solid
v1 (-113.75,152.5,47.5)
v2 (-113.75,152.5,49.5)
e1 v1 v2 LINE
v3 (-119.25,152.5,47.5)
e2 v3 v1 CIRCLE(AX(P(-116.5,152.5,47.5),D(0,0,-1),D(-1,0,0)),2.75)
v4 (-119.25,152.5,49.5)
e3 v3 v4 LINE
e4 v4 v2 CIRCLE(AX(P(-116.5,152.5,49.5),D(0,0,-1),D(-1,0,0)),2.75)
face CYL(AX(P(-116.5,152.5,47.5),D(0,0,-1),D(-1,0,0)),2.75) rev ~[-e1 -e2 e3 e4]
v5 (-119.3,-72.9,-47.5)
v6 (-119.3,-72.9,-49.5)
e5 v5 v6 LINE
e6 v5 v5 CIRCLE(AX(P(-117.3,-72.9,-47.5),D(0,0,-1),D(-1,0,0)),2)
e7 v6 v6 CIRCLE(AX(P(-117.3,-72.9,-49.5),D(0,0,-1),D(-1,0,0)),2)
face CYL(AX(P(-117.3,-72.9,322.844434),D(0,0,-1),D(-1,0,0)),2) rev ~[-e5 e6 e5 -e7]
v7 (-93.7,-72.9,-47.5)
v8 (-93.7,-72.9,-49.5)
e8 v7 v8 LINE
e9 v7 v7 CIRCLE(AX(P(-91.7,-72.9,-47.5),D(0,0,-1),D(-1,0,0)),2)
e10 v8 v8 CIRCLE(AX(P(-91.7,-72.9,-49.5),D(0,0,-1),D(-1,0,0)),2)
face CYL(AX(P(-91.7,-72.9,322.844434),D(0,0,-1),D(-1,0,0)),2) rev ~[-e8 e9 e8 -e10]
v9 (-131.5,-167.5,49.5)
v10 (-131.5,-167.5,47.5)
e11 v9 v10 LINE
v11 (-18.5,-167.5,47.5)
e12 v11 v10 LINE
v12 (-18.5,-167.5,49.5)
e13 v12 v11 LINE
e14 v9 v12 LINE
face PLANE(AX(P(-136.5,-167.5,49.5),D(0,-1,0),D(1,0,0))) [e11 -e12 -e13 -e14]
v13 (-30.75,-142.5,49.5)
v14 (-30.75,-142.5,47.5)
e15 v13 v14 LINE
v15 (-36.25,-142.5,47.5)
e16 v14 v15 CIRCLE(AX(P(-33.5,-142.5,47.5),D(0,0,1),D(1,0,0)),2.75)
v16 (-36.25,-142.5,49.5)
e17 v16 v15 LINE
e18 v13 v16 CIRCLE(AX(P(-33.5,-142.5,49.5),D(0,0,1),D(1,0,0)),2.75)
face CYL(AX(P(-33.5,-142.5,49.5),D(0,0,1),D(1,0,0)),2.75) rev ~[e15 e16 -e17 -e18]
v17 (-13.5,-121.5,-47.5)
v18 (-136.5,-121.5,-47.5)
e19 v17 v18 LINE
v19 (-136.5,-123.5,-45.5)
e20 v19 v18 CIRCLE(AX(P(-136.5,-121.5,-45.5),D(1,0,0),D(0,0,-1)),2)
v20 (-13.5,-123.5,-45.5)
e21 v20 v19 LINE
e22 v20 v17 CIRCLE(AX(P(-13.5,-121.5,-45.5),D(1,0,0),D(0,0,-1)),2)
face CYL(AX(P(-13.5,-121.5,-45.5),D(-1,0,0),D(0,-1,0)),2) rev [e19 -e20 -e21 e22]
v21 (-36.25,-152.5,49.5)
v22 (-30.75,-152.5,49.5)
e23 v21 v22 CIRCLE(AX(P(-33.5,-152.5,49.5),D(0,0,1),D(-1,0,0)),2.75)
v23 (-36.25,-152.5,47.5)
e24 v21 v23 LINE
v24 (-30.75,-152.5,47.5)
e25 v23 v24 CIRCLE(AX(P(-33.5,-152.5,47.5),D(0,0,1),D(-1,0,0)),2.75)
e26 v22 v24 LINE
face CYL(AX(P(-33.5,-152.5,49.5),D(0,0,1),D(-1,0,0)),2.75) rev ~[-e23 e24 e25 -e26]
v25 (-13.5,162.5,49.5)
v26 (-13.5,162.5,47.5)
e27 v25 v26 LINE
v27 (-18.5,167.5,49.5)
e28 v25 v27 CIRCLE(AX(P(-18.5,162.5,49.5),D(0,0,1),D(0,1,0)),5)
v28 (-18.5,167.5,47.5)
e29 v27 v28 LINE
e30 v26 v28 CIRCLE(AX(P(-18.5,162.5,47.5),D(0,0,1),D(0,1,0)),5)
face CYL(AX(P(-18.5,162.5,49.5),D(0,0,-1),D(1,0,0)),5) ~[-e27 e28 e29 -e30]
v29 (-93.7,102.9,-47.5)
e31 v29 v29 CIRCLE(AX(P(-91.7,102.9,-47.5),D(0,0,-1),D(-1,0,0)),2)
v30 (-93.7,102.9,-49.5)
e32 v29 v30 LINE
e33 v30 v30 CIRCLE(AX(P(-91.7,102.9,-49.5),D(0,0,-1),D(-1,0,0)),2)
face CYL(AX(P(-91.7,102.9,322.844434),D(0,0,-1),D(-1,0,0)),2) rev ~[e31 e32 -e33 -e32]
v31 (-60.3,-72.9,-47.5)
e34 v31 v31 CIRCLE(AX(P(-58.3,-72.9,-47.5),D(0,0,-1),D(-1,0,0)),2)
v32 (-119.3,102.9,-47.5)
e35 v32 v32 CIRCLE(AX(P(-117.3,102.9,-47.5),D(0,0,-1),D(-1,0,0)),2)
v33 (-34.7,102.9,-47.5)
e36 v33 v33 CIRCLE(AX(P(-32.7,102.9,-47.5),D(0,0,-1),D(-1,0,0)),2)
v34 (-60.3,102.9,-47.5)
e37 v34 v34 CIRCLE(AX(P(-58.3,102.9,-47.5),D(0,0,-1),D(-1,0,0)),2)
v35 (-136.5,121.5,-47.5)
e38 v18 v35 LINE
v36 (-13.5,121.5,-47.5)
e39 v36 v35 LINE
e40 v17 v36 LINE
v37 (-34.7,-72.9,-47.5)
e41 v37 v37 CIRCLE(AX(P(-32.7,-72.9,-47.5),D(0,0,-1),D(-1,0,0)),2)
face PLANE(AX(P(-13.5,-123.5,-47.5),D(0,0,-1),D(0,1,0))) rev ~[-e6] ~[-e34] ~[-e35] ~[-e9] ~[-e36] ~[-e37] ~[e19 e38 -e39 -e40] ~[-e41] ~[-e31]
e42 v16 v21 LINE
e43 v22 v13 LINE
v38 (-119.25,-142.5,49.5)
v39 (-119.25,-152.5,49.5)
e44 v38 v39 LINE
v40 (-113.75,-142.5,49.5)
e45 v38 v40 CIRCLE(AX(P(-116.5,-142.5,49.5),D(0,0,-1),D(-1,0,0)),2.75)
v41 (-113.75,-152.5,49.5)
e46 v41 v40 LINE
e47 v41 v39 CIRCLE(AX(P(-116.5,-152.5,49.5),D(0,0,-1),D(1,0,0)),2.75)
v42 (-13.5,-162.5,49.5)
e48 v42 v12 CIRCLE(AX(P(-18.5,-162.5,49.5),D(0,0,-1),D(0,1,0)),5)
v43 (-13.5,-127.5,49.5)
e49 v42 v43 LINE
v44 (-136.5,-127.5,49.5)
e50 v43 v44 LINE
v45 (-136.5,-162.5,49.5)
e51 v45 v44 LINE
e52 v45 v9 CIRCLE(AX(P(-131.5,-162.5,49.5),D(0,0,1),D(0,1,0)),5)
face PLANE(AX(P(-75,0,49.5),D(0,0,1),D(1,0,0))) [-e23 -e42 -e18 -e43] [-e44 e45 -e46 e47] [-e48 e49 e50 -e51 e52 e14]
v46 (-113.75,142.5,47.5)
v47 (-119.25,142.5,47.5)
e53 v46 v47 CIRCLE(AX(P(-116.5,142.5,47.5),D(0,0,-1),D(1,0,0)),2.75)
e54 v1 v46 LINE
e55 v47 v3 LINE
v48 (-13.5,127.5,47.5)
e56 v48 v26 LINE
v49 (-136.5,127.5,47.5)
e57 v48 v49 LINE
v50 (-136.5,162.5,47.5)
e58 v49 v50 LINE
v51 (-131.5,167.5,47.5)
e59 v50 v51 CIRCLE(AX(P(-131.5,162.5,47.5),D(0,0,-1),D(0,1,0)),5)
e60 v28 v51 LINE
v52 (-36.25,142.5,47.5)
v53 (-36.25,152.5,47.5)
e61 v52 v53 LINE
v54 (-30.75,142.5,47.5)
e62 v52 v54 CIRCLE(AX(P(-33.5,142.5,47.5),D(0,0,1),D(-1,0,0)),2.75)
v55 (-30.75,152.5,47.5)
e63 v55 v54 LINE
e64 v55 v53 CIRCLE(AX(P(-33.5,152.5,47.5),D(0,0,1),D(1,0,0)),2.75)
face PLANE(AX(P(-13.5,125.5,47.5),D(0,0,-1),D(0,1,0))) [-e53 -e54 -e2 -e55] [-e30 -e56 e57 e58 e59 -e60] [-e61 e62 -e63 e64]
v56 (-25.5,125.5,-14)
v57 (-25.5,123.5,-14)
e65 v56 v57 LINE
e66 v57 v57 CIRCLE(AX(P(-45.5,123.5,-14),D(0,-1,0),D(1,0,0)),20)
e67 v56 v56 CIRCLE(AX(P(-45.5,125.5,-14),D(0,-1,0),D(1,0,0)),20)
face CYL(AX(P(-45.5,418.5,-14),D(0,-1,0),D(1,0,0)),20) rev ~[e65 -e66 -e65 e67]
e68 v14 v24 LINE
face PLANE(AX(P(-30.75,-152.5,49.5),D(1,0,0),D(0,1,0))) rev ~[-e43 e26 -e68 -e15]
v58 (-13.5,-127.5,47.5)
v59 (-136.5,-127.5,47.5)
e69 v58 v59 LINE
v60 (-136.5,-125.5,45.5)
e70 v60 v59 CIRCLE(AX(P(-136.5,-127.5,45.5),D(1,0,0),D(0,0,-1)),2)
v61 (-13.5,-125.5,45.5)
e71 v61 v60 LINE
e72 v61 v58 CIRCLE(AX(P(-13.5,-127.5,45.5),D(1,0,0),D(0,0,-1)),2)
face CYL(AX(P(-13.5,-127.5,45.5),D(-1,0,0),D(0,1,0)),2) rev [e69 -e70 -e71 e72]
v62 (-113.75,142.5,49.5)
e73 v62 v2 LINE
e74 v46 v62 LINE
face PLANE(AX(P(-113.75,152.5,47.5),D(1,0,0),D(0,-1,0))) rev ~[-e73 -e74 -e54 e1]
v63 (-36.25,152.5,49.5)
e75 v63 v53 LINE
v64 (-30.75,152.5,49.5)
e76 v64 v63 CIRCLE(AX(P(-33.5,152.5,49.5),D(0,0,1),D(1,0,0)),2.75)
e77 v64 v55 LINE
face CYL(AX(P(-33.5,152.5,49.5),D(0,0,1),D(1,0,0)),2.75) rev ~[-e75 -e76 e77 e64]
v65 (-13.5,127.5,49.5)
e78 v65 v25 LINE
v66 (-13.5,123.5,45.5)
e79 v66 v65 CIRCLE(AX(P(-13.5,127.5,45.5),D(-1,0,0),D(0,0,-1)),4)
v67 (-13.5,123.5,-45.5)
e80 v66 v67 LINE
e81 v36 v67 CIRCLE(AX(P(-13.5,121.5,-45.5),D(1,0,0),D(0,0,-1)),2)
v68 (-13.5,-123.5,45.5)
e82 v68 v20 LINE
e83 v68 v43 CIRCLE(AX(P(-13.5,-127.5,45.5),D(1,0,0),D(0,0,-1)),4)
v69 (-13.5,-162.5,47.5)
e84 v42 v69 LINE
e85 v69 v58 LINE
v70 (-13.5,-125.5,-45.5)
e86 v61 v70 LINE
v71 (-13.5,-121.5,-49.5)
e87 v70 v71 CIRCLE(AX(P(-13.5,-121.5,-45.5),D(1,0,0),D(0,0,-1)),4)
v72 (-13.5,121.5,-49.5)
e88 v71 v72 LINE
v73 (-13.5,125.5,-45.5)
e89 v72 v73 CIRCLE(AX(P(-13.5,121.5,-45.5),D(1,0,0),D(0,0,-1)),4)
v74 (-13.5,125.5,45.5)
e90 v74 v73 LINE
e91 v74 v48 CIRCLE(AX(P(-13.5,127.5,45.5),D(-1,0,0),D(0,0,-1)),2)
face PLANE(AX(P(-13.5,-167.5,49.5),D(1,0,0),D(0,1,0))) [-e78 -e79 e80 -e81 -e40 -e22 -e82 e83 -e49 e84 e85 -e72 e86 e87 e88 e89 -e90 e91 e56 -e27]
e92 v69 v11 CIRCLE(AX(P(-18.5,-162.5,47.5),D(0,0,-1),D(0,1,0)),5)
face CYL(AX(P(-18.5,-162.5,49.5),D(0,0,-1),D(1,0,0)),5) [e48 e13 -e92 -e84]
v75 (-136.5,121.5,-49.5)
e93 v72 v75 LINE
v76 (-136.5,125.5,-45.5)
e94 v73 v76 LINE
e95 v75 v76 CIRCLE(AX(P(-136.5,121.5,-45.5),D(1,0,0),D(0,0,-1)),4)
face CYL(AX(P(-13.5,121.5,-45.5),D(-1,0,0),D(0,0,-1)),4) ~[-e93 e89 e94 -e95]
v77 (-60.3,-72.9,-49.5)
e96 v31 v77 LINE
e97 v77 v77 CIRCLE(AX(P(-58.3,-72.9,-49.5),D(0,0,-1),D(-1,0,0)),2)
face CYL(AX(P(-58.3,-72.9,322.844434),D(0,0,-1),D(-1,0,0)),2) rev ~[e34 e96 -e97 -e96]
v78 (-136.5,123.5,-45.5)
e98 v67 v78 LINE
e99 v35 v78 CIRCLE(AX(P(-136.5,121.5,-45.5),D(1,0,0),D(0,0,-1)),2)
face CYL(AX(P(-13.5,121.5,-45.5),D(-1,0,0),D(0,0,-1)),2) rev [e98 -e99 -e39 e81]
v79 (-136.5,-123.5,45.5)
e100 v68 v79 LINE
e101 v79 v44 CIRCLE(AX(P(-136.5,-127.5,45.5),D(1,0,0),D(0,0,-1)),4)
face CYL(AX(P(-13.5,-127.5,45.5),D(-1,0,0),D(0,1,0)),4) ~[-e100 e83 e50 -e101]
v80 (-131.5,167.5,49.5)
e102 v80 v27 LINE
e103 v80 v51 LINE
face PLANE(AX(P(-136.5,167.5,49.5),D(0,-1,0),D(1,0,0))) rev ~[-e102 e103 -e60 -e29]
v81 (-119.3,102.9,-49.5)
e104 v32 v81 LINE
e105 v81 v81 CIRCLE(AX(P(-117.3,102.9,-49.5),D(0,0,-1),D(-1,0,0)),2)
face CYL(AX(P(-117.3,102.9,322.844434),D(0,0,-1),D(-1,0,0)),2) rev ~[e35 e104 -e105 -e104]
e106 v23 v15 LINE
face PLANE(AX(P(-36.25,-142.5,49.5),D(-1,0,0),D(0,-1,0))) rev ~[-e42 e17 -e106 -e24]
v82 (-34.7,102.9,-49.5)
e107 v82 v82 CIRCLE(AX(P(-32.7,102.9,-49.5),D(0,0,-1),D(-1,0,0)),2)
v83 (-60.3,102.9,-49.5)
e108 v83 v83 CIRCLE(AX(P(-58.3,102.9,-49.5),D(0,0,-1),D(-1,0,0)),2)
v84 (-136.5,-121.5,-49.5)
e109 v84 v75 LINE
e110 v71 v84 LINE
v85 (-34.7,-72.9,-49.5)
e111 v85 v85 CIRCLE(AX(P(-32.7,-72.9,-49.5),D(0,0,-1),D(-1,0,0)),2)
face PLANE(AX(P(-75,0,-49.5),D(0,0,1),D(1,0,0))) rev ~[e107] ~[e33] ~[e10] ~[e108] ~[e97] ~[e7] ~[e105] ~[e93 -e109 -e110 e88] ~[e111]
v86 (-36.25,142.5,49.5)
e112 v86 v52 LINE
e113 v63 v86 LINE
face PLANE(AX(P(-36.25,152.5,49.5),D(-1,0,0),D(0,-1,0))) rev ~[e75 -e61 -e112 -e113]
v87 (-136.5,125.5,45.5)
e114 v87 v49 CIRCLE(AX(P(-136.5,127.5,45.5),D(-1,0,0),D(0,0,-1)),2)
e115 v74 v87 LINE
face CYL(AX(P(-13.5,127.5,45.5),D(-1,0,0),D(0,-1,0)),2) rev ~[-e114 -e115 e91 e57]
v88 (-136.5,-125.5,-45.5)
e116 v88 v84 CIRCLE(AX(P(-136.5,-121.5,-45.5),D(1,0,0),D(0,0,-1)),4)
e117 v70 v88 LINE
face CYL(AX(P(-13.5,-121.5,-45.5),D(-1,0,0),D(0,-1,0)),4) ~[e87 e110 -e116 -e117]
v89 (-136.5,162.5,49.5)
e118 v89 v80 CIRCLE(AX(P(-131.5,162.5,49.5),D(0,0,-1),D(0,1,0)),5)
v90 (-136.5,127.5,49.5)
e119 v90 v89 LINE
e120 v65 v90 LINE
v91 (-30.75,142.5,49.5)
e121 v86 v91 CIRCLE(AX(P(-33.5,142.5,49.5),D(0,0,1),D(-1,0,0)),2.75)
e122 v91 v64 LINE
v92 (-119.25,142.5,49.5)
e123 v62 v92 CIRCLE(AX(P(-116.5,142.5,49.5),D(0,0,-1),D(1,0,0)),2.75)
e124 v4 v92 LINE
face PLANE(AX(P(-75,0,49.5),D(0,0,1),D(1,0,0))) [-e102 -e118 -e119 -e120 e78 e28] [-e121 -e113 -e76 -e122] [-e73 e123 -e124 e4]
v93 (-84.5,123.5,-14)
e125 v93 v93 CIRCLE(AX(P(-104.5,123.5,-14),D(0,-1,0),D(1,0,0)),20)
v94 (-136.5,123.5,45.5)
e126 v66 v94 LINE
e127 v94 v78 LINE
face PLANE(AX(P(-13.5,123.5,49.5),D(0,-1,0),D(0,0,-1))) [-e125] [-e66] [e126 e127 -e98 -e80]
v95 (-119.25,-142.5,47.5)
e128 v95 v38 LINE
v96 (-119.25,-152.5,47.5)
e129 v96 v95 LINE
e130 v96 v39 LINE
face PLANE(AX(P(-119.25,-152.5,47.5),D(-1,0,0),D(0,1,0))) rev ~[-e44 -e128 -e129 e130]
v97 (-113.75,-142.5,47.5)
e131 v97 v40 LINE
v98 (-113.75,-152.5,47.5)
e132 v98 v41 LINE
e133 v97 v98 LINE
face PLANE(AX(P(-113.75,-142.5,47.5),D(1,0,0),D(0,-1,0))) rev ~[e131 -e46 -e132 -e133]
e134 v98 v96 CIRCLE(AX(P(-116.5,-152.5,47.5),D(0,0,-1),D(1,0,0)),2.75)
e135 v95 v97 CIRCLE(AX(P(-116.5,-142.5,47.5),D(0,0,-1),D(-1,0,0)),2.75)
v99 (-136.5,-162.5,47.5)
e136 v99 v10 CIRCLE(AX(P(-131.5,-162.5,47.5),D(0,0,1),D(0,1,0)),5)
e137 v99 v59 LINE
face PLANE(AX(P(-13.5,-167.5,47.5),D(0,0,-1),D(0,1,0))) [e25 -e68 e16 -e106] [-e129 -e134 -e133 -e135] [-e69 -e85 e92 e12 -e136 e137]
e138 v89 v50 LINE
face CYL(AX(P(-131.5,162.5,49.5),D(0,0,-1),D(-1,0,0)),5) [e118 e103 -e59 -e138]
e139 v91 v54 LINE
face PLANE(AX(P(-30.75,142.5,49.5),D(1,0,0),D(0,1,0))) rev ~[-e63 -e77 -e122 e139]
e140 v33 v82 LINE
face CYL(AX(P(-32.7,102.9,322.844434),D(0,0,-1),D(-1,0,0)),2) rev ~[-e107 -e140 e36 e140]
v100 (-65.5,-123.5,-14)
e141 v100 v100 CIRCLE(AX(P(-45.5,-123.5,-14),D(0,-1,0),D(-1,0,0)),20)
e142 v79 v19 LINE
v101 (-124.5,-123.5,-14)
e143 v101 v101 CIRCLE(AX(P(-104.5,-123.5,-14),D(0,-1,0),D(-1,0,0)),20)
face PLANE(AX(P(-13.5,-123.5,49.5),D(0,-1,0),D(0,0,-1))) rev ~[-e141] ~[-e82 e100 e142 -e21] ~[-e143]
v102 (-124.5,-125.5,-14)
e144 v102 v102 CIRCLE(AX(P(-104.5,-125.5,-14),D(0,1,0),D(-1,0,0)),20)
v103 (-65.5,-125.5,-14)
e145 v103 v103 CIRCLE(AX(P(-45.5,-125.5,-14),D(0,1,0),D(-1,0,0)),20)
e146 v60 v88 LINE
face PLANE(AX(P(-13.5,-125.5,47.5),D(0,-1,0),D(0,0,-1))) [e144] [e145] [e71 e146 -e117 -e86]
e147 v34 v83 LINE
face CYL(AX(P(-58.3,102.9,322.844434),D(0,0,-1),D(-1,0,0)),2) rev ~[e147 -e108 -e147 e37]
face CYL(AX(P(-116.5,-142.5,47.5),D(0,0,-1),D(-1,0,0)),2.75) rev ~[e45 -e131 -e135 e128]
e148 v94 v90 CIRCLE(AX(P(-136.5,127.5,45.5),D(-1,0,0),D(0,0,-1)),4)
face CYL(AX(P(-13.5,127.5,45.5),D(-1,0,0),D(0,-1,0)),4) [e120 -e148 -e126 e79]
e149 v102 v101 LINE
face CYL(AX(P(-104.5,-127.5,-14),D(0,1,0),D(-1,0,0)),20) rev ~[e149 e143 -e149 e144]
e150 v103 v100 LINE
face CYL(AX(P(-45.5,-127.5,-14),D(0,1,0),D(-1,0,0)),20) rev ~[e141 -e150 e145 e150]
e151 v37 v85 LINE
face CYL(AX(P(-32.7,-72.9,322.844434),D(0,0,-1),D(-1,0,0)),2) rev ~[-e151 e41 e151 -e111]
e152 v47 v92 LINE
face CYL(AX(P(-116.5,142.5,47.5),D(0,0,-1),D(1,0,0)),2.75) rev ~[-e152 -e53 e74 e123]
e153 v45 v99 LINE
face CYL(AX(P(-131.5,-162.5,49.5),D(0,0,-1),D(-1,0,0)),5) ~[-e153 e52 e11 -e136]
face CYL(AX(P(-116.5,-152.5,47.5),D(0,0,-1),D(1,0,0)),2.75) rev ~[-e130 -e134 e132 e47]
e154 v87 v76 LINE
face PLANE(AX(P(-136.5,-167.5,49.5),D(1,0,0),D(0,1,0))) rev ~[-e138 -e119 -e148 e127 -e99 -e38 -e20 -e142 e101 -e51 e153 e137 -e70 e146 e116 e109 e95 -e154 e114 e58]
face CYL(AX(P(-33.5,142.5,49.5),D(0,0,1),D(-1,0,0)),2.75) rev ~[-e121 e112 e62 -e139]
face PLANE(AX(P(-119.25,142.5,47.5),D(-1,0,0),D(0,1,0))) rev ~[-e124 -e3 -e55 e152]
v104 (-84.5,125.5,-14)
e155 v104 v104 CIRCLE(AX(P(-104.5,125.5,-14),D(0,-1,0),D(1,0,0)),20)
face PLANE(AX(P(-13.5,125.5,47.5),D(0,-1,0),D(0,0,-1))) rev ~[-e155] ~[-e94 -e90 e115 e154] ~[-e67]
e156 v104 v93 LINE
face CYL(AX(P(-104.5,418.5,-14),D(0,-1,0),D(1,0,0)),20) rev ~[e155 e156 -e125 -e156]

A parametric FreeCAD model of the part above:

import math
import FreeCAD as App
import Part
import Sketcher


def edges_at(feature, points):
    """Names of the edges that pass closest to the given points."""
    edges = feature.Shape.Edges
    near = lambda p: min(range(len(edges)), key=lambda i: edges[i].distToShape(Part.Vertex(*p))[0])
    return sorted({f"Edge{near(p) + 1}" for p in points})

doc = App.newDocument("Part")
params = doc.addObject("Spreadsheet::Sheet", "Params")
for row, (alias, value) in enumerate([
    ("sketch1_width", "123 mm"),
    ("sketch1_height", "335 mm"),
    ("pad1_length", "99 mm"),
    ("sketch2_width", "247 mm"),
    ("sketch2_height", "97 mm"),
    ("sketch3_width", "42 mm"),
    ("sketch3_height", "97 mm"),
    ("sketch4_width", "42 mm"),
    ("sketch4_height", "97 mm"),
    ("sketch5_height", "10 mm"),
    ("sketch5_radius", "2.75 mm"),
    ("sketch6_height", "10 mm"),
    ("sketch6_radius", "2.75 mm"),
    ("sketch7_height", "10 mm"),
    ("sketch7_radius", "2.75 mm"),
    ("sketch8_height", "10 mm"),
    ("sketch8_radius", "2.75 mm"),
    ("sketch9_diameter", "4 mm"),
    ("hole_diameter", "4 mm"),
    ("sketch10_diameter", "4 mm"),
    ("hole2_diameter", "4 mm"),
    ("sketch11_diameter", "4 mm"),
    ("hole3_diameter", "4 mm"),
    ("sketch12_diameter", "4 mm"),
    ("hole4_diameter", "4 mm"),
    ("sketch13_diameter", "4 mm"),
    ("hole5_diameter", "4 mm"),
    ("sketch14_diameter", "4 mm"),
    ("hole6_diameter", "4 mm"),
    ("sketch15_diameter", "4 mm"),
    ("hole7_diameter", "4 mm"),
    ("sketch16_diameter", "4 mm"),
    ("hole8_diameter", "4 mm"),
    ("sketch17_diameter", "40 mm"),
    ("hole9_diameter", "40 mm"),
    ("hole9_depth", "2 mm"),
    ("sketch18_diameter", "40 mm"),
    ("hole10_diameter", "40 mm"),
    ("hole10_depth", "2 mm"),
    ("sketch19_diameter", "40 mm"),
    ("hole11_diameter", "40 mm"),
    ("hole11_depth", "293 mm"),
    ("sketch20_diameter", "40 mm"),
    ("hole12_diameter", "40 mm"),
    ("hole12_depth", "293 mm"),
    ("fillet_radius", "2 mm"),
    ("fillet2_radius", "2 mm"),
    ("fillet3_radius", "2 mm"),
    ("fillet4_radius", "2 mm"),
    ("fillet5_radius", "4 mm"),
    ("fillet6_radius", "4 mm"),
    ("fillet7_radius", "4 mm"),
    ("fillet8_radius", "4 mm"),
    ("fillet9_radius", "5 mm"),
    ("fillet10_radius", "5 mm"),
    ("fillet11_radius", "5 mm"),
    ("fillet12_radius", "5 mm"),
], start=1):
    params.set(f"A{row}", alias)
    params.set(f"B{row}", "=" + value)
    params.setAlias(f"B{row}", alias)

body = doc.addObject("PartDesign::Body", "Body")

# Sketch on XY plane
sketch1 = doc.addObject("Sketcher::SketchObject", "Sketch")
body.addObject(sketch1)
sketch1.AttachmentSupport = (doc.XY_Plane, [""])
sketch1.MapMode = "FlatFace"
sketch1.AttachmentOffset = App.Placement(App.Vector(0, 0, 49.5), App.Rotation())
sketch1.addGeometry([
    Part.LineSegment(App.Vector(-136, 168, 0), App.Vector(-136, -168, 0)),
    Part.LineSegment(App.Vector(-136, -168, 0), App.Vector(-14, -168, 0)),
    Part.LineSegment(App.Vector(-14, -168, 0), App.Vector(-14, 168, 0)),
    Part.LineSegment(App.Vector(-14, 168, 0), App.Vector(-136, 168, 0)),
], False)
sketch1.addConstraint([
    Sketcher.Constraint("Coincident", 0, 2, 1, 1),
    Sketcher.Constraint("Coincident", 1, 2, 2, 1),
    Sketcher.Constraint("Coincident", 2, 2, 3, 1),
    Sketcher.Constraint("Coincident", 3, 2, 0, 1),
    Sketcher.Constraint("Vertical", 0),
    Sketcher.Constraint("Horizontal", 1),
    Sketcher.Constraint("Vertical", 2),
    Sketcher.Constraint("Horizontal", 3),
    Sketcher.Constraint("DistanceX", 1, 1, 1, 2, 123.0),
    Sketcher.Constraint("DistanceY", 0, 2, 0, 1, 335.0),
    Sketcher.Constraint("DistanceX", 0, 2, -1, 1, 136.5),
    Sketcher.Constraint("DistanceY", 0, 2, -1, 1, 167.5),
])
sketch1.setExpression("Constraints[8]", "Params.sketch1_width")
sketch1.setExpression("Constraints[9]", "Params.sketch1_height")
pad1 = doc.addObject("PartDesign::Pad", "Pad")
body.addObject(pad1)
pad1.Profile = sketch1
pad1.setExpression("Length", "Params.pad1_length")
pad1.Reversed = True

# Sketch on YZ plane
sketch2 = doc.addObject("Sketcher::SketchObject", "Sketch001")
body.addObject(sketch2)
sketch2.AttachmentSupport = (doc.YZ_Plane, [""])
sketch2.MapMode = "FlatFace"
sketch2.AttachmentOffset = App.Placement(App.Vector(0, 0, -13.5), App.Rotation())
sketch2.addGeometry([
    Part.LineSegment(App.Vector(124, 50, 0), App.Vector(-124, 50, 0)),
    Part.LineSegment(App.Vector(-124, 50, 0), App.Vector(-124, -48, 0)),
    Part.LineSegment(App.Vector(-124, -48, 0), App.Vector(124, -48, 0)),
    Part.LineSegment(App.Vector(124, -48, 0), App.Vector(124, 50, 0)),
], False)
sketch2.addConstraint([
    Sketcher.Constraint("Coincident", 0, 2, 1, 1),
    Sketcher.Constraint("Coincident", 1, 2, 2, 1),
    Sketcher.Constraint("Coincident", 2, 2, 3, 1),
    Sketcher.Constraint("Coincident", 3, 2, 0, 1),
    Sketcher.Constraint("Horizontal", 0),
    Sketcher.Constraint("Vertical", 1),
    Sketcher.Constraint("Horizontal", 2),
    Sketcher.Constraint("Vertical", 3),
    Sketcher.Constraint("DistanceX", 0, 2, 0, 1, 247.0),
    Sketcher.Constraint("DistanceY", 1, 2, 1, 1, 97.0),
    Sketcher.Constraint("DistanceX", 0, 2, -1, 1, 123.5),
    Sketcher.Constraint("DistanceY", -1, 1, 0, 2, 49.5),
])
sketch2.setExpression("Constraints[8]", "Params.sketch2_width")
sketch2.setExpression("Constraints[9]", "Params.sketch2_height")
pocket1 = doc.addObject("PartDesign::Pocket", "Pocket")
body.addObject(pocket1)
pocket1.Profile = sketch2
pocket1.Type = "ThroughAll"

# Sketch on YZ plane
sketch3 = doc.addObject("Sketcher::SketchObject", "Sketch002")
body.addObject(sketch3)
sketch3.AttachmentSupport = (doc.YZ_Plane, [""])
sketch3.MapMode = "FlatFace"
sketch3.AttachmentOffset = App.Placement(App.Vector(0, 0, -13.5), App.Rotation())
sketch3.addGeometry([
    Part.LineSegment(App.Vector(168, 48, 0), App.Vector(126, 48, 0)),
    Part.LineSegment(App.Vector(126, 48, 0), App.Vector(126, -50, 0)),
    Part.LineSegment(App.Vector(126, -50, 0), App.Vector(168, -50, 0)),
    Part.LineSegment(App.Vector(168, -50, 0), App.Vector(168, 48, 0)),
], False)
sketch3.addConstraint([
    Sketcher.Constraint("Coincident", 0, 2, 1, 1),
    Sketcher.Constraint("Coincident", 1, 2, 2, 1),
    Sketcher.Constraint("Coincident", 2, 2, 3, 1),
    Sketcher.Constraint("Coincident", 3, 2, 0, 1),
    Sketcher.Constraint("Horizontal", 0),
    Sketcher.Constraint("Vertical", 1),
    Sketcher.Constraint("Horizontal", 2),
    Sketcher.Constraint("Vertical", 3),
    Sketcher.Constraint("DistanceX", 0, 2, 0, 1, 42.0),
    Sketcher.Constraint("DistanceY", 1, 2, 1, 1, 97.0),
    Sketcher.Constraint("DistanceX", -1, 1, 0, 2, 125.5),
    Sketcher.Constraint("DistanceY", -1, 1, 0, 2, 47.5),
])
sketch3.setExpression("Constraints[8]", "Params.sketch3_width")
sketch3.setExpression("Constraints[9]", "Params.sketch3_height")
pocket2 = doc.addObject("PartDesign::Pocket", "Pocket001")
body.addObject(pocket2)
pocket2.Profile = sketch3
pocket2.Type = "ThroughAll"

# Sketch on YZ plane
sketch4 = doc.addObject("Sketcher::SketchObject", "Sketch003")
body.addObject(sketch4)
sketch4.AttachmentSupport = (doc.YZ_Plane, [""])
sketch4.MapMode = "FlatFace"
sketch4.AttachmentOffset = App.Placement(App.Vector(0, 0, -13.5), App.Rotation())
sketch4.addGeometry([
    Part.LineSegment(App.Vector(-126, 48, 0), App.Vector(-168, 48, 0)),
    Part.LineSegment(App.Vector(-168, 48, 0), App.Vector(-168, -50, 0)),
    Part.LineSegment(App.Vector(-168, -50, 0), App.Vector(-126, -50, 0)),
    Part.LineSegment(App.Vector(-126, -50, 0), App.Vector(-126, 48, 0)),
], False)
sketch4.addConstraint([
    Sketcher.Constraint("Coincident", 0, 2, 1, 1),
    Sketcher.Constraint("Coincident", 1, 2, 2, 1),
    Sketcher.Constraint("Coincident", 2, 2, 3, 1),
    Sketcher.Constraint("Coincident", 3, 2, 0, 1),
    Sketcher.Constraint("Horizontal", 0),
    Sketcher.Constraint("Vertical", 1),
    Sketcher.Constraint("Horizontal", 2),
    Sketcher.Constraint("Vertical", 3),
    Sketcher.Constraint("DistanceX", 0, 2, 0, 1, 42.0),
    Sketcher.Constraint("DistanceY", 1, 2, 1, 1, 97.0),
    Sketcher.Constraint("DistanceX", 0, 2, -1, 1, 167.5),
    Sketcher.Constraint("DistanceY", -1, 1, 0, 2, 47.5),
])
sketch4.setExpression("Constraints[8]", "Params.sketch4_width")
sketch4.setExpression("Constraints[9]", "Params.sketch4_height")
pocket3 = doc.addObject("PartDesign::Pocket", "Pocket002")
body.addObject(pocket3)
pocket3.Profile = sketch4
pocket3.Type = "ThroughAll"

# Sketch on XY plane
sketch5 = doc.addObject("Sketcher::SketchObject", "Sketch004")
body.addObject(sketch5)
sketch5.AttachmentSupport = (doc.XY_Plane, [""])
sketch5.MapMode = "FlatFace"
sketch5.AttachmentOffset = App.Placement(App.Vector(0, 0, 49.5), App.Rotation())
sketch5.addGeometry([
    Part.LineSegment(App.Vector(-30.8, 142.5, 0), App.Vector(-30.8, 152.5, 0)),
    Part.ArcOfCircle(Part.Circle(App.Vector(-33.5, 152.5, 0), App.Vector(0, 0, 1), 2.8), math.radians(0), math.radians(180)),
    Part.LineSegment(App.Vector(-36.2, 152.5, 0), App.Vector(-36.2, 142.5, 0)),
    Part.ArcOfCircle(Part.Circle(App.Vector(-33.5, 142.5, 0), App.Vector(0, 0, 1), 2.8), math.radians(180), math.radians(360)),
], False)
sketch5.addConstraint([
    Sketcher.Constraint("Tangent", 0, 2, 1, 1),
    Sketcher.Constraint("Tangent", 1, 2, 2, 1),
    Sketcher.Constraint("Tangent", 2, 2, 3, 1),
    Sketcher.Constraint("Tangent", 3, 2, 0, 1),
    Sketcher.Constraint("Vertical", 0),
    Sketcher.Constraint("Vertical", 2),
    Sketcher.Constraint("DistanceY", 0, 1, 0, 2, 10.0),
    Sketcher.Constraint("Radius", 1, 2.75),
    Sketcher.Constraint("DistanceX", 1, 3, -1, 1, 33.5),
    Sketcher.Constraint("DistanceY", -1, 1, 1, 3, 152.5),
])
sketch5.setExpression("Constraints[6]", "Params.sketch5_height")
sketch5.setExpression("Constraints[7]", "Params.sketch5_radius")
pocket4 = doc.addObject("PartDesign::Pocket", "Pocket003")
body.addObject(pocket4)
pocket4.Profile = sketch5
pocket4.Type = "ThroughAll"

# Sketch on XY plane
sketch6 = doc.addObject("Sketcher::SketchObject", "Sketch005")
body.addObject(sketch6)
sketch6.AttachmentSupport = (doc.XY_Plane, [""])
sketch6.MapMode = "FlatFace"
sketch6.AttachmentOffset = App.Placement(App.Vector(0, 0, 47.5), App.Rotation())
sketch6.addGeometry([
    Part.LineSegment(App.Vector(-113.8, 152.5, 0), App.Vector(-113.8, 142.5, 0)),
    Part.ArcOfCircle(Part.Circle(App.Vector(-116.5, 142.5, 0), App.Vector(0, 0, 1), 2.8), math.radians(180), math.radians(360)),
    Part.LineSegment(App.Vector(-119.2, 142.5, 0), App.Vector(-119.2, 152.5, 0)),
    Part.ArcOfCircle(Part.Circle(App.Vector(-116.5, 152.5, 0), App.Vector(0, 0, 1), 2.8), math.radians(0), math.radians(180)),
], False)
sketch6.addConstraint([
    Sketcher.Constraint("Tangent", 0, 2, 1, 2),
    Sketcher.Constraint("Tangent", 1, 1, 2, 1),
    Sketcher.Constraint("Tangent", 2, 2, 3, 2),
    Sketcher.Constraint("Tangent", 3, 1, 0, 1),
    Sketcher.Constraint("Vertical", 0),
    Sketcher.Constraint("Vertical", 2),
    Sketcher.Constraint("DistanceY", 0, 2, 0, 1, 10.0),
    Sketcher.Constraint("Radius", 1, 2.75),
    Sketcher.Constraint("DistanceX", 1, 3, -1, 1, 116.5),
    Sketcher.Constraint("DistanceY", -1, 1, 1, 3, 142.5),
])
sketch6.setExpression("Constraints[6]", "Params.sketch6_height")
sketch6.setExpression("Constraints[7]", "Params.sketch6_radius")
pocket5 = doc.addObject("PartDesign::Pocket", "Pocket004")
body.addObject(pocket5)
pocket5.Profile = sketch6
pocket5.Type = "ThroughAll"
pocket5.Reversed = True

# Sketch on XY plane
sketch7 = doc.addObject("Sketcher::SketchObject", "Sketch006")
body.addObject(sketch7)
sketch7.AttachmentSupport = (doc.XY_Plane, [""])
sketch7.MapMode = "FlatFace"
sketch7.AttachmentOffset = App.Placement(App.Vector(0, 0, 49.5), App.Rotation())
sketch7.addGeometry([
    Part.LineSegment(App.Vector(-30.8, -152.5, 0), App.Vector(-30.8, -142.5, 0)),
    Part.ArcOfCircle(Part.Circle(App.Vector(-33.5, -142.5, 0), App.Vector(0, 0, 1), 2.8), math.radians(0), math.radians(180)),
    Part.LineSegment(App.Vector(-36.2, -142.5, 0), App.Vector(-36.2, -152.5, 0)),
    Part.ArcOfCircle(Part.Circle(App.Vector(-33.5, -152.5, 0), App.Vector(0, 0, 1), 2.8), math.radians(180), math.radians(360)),
], False)
sketch7.addConstraint([
    Sketcher.Constraint("Tangent", 0, 2, 1, 1),
    Sketcher.Constraint("Tangent", 1, 2, 2, 1),
    Sketcher.Constraint("Tangent", 2, 2, 3, 1),
    Sketcher.Constraint("Tangent", 3, 2, 0, 1),
    Sketcher.Constraint("Vertical", 0),
    Sketcher.Constraint("Vertical", 2),
    Sketcher.Constraint("DistanceY", 0, 1, 0, 2, 10.0),
    Sketcher.Constraint("Radius", 1, 2.75),
    Sketcher.Constraint("DistanceX", 1, 3, -1, 1, 33.5),
    Sketcher.Constraint("DistanceY", 1, 3, -1, 1, 142.5),
])
sketch7.setExpression("Constraints[6]", "Params.sketch7_height")
sketch7.setExpression("Constraints[7]", "Params.sketch7_radius")
pocket6 = doc.addObject("PartDesign::Pocket", "Pocket005")
body.addObject(pocket6)
pocket6.Profile = sketch7
pocket6.Type = "ThroughAll"

# Sketch on XY plane
sketch8 = doc.addObject("Sketcher::SketchObject", "Sketch007")
body.addObject(sketch8)
sketch8.AttachmentSupport = (doc.XY_Plane, [""])
sketch8.MapMode = "FlatFace"
sketch8.AttachmentOffset = App.Placement(App.Vector(0, 0, 47.5), App.Rotation())
sketch8.addGeometry([
    Part.LineSegment(App.Vector(-113.8, -142.5, 0), App.Vector(-113.8, -152.5, 0)),
    Part.ArcOfCircle(Part.Circle(App.Vector(-116.5, -152.5, 0), App.Vector(0, 0, 1), 2.8), math.radians(180), math.radians(360)),
    Part.LineSegment(App.Vector(-119.2, -152.5, 0), App.Vector(-119.2, -142.5, 0)),
    Part.ArcOfCircle(Part.Circle(App.Vector(-116.5, -142.5, 0), App.Vector(0, 0, 1), 2.8), math.radians(0), math.radians(180)),
], False)
sketch8.addConstraint([
    Sketcher.Constraint("Tangent", 0, 2, 1, 2),
    Sketcher.Constraint("Tangent", 1, 1, 2, 1),
    Sketcher.Constraint("Tangent", 2, 2, 3, 2),
    Sketcher.Constraint("Tangent", 3, 1, 0, 1),
    Sketcher.Constraint("Vertical", 0),
    Sketcher.Constraint("Vertical", 2),
    Sketcher.Constraint("DistanceY", 0, 2, 0, 1, 10.0),
    Sketcher.Constraint("Radius", 1, 2.75),
    Sketcher.Constraint("DistanceX", 1, 3, -1, 1, 116.5),
    Sketcher.Constraint("DistanceY", 1, 3, -1, 1, 152.5),
])
sketch8.setExpression("Constraints[6]", "Params.sketch8_height")
sketch8.setExpression("Constraints[7]", "Params.sketch8_radius")
pocket7 = doc.addObject("PartDesign::Pocket", "Pocket006")
body.addObject(pocket7)
pocket7.Profile = sketch8
pocket7.Type = "ThroughAll"
pocket7.Reversed = True

# Sketch on XY plane
sketch9 = doc.addObject("Sketcher::SketchObject", "Sketch008")
body.addObject(sketch9)
sketch9.AttachmentSupport = (doc.XY_Plane, [""])
sketch9.MapMode = "FlatFace"
sketch9.AttachmentOffset = App.Placement(App.Vector(0, 0, -47.5), App.Rotation())
sketch9.addGeometry(Part.Circle(App.Vector(-117.3, -72.9, 0), App.Vector(0, 0, 1), 2), False)
sketch9.addConstraint([
    Sketcher.Constraint("Diameter", 0, 4.0),
    Sketcher.Constraint("DistanceX", 0, 3, -1, 1, 117.3),
    Sketcher.Constraint("DistanceY", 0, 3, -1, 1, 72.9),
])
sketch9.setExpression("Constraints[0]", "Params.sketch9_diameter")
doc.recompute()
hole = doc.addObject("PartDesign::Hole", "Hole")
body.addObject(hole)
hole.Profile = sketch9
hole.ThreadType = "None"
hole.setExpression("Diameter", "Params.hole_diameter")
hole.DepthType = "ThroughAll"

# Sketch on XY plane
sketch10 = doc.addObject("Sketcher::SketchObject", "Sketch009")
body.addObject(sketch10)
sketch10.AttachmentSupport = (doc.XY_Plane, [""])
sketch10.MapMode = "FlatFace"
sketch10.AttachmentOffset = App.Placement(App.Vector(0, 0, -47.5), App.Rotation())
sketch10.addGeometry(Part.Circle(App.Vector(-91.7, -72.9, 0), App.Vector(0, 0, 1), 2), False)
sketch10.addConstraint([
    Sketcher.Constraint("Diameter", 0, 4.0),
    Sketcher.Constraint("DistanceX", 0, 3, -1, 1, 91.7),
    Sketcher.Constraint("DistanceY", 0, 3, -1, 1, 72.9),
])
sketch10.setExpression("Constraints[0]", "Params.sketch10_diameter")
doc.recompute()
hole2 = doc.addObject("PartDesign::Hole", "Hole001")
body.addObject(hole2)
hole2.Profile = sketch10
hole2.ThreadType = "None"
hole2.setExpression("Diameter", "Params.hole2_diameter")
hole2.DepthType = "ThroughAll"

# Sketch on XY plane
sketch11 = doc.addObject("Sketcher::SketchObject", "Sketch010")
body.addObject(sketch11)
sketch11.AttachmentSupport = (doc.XY_Plane, [""])
sketch11.MapMode = "FlatFace"
sketch11.AttachmentOffset = App.Placement(App.Vector(0, 0, -47.5), App.Rotation())
sketch11.addGeometry(Part.Circle(App.Vector(-32.7, -72.9, 0), App.Vector(0, 0, 1), 2), False)
sketch11.addConstraint([
    Sketcher.Constraint("Diameter", 0, 4.0),
    Sketcher.Constraint("DistanceX", 0, 3, -1, 1, 32.7),
    Sketcher.Constraint("DistanceY", 0, 3, -1, 1, 72.9),
])
sketch11.setExpression("Constraints[0]", "Params.sketch11_diameter")
doc.recompute()
hole3 = doc.addObject("PartDesign::Hole", "Hole002")
body.addObject(hole3)
hole3.Profile = sketch11
hole3.ThreadType = "None"
hole3.setExpression("Diameter", "Params.hole3_diameter")
hole3.DepthType = "ThroughAll"

# Sketch on XY plane
sketch12 = doc.addObject("Sketcher::SketchObject", "Sketch011")
body.addObject(sketch12)
sketch12.AttachmentSupport = (doc.XY_Plane, [""])
sketch12.MapMode = "FlatFace"
sketch12.AttachmentOffset = App.Placement(App.Vector(0, 0, -47.5), App.Rotation())
sketch12.addGeometry(Part.Circle(App.Vector(-58.3, -72.9, 0), App.Vector(0, 0, 1), 2), False)
sketch12.addConstraint([
    Sketcher.Constraint("Diameter", 0, 4.0),
    Sketcher.Constraint("DistanceX", 0, 3, -1, 1, 58.3),
    Sketcher.Constraint("DistanceY", 0, 3, -1, 1, 72.9),
])
sketch12.setExpression("Constraints[0]", "Params.sketch12_diameter")
doc.recompute()
hole4 = doc.addObject("PartDesign::Hole", "Hole003")
body.addObject(hole4)
hole4.Profile = sketch12
hole4.ThreadType = "None"
hole4.setExpression("Diameter", "Params.hole4_diameter")
hole4.DepthType = "ThroughAll"

# Sketch on XY plane
sketch13 = doc.addObject("Sketcher::SketchObject", "Sketch012")
body.addObject(sketch13)
sketch13.AttachmentSupport = (doc.XY_Plane, [""])
sketch13.MapMode = "FlatFace"
sketch13.AttachmentOffset = App.Placement(App.Vector(0, 0, -47.5), App.Rotation())
sketch13.addGeometry(Part.Circle(App.Vector(-91.7, 102.9, 0), App.Vector(0, 0, 1), 2), False)
sketch13.addConstraint([
    Sketcher.Constraint("Diameter", 0, 4.0),
    Sketcher.Constraint("DistanceX", 0, 3, -1, 1, 91.7),
    Sketcher.Constraint("DistanceY", -1, 1, 0, 3, 102.9),
])
sketch13.setExpression("Constraints[0]", "Params.sketch13_diameter")
doc.recompute()
hole5 = doc.addObject("PartDesign::Hole", "Hole004")
body.addObject(hole5)
hole5.Profile = sketch13
hole5.ThreadType = "None"
hole5.setExpression("Diameter", "Params.hole5_diameter")
hole5.DepthType = "ThroughAll"

# Sketch on XY plane
sketch14 = doc.addObject("Sketcher::SketchObject", "Sketch013")
body.addObject(sketch14)
sketch14.AttachmentSupport = (doc.XY_Plane, [""])
sketch14.MapMode = "FlatFace"
sketch14.AttachmentOffset = App.Placement(App.Vector(0, 0, -47.5), App.Rotation())
sketch14.addGeometry(Part.Circle(App.Vector(-117.3, 102.9, 0), App.Vector(0, 0, 1), 2), False)
sketch14.addConstraint([
    Sketcher.Constraint("Diameter", 0, 4.0),
    Sketcher.Constraint("DistanceX", 0, 3, -1, 1, 117.3),
    Sketcher.Constraint("DistanceY", -1, 1, 0, 3, 102.9),
])
sketch14.setExpression("Constraints[0]", "Params.sketch14_diameter")
doc.recompute()
hole6 = doc.addObject("PartDesign::Hole", "Hole005")
body.addObject(hole6)
hole6.Profile = sketch14
hole6.ThreadType = "None"
hole6.setExpression("Diameter", "Params.hole6_diameter")
hole6.DepthType = "ThroughAll"

# Sketch on XY plane
sketch15 = doc.addObject("Sketcher::SketchObject", "Sketch014")
body.addObject(sketch15)
sketch15.AttachmentSupport = (doc.XY_Plane, [""])
sketch15.MapMode = "FlatFace"
sketch15.AttachmentOffset = App.Placement(App.Vector(0, 0, -47.5), App.Rotation())
sketch15.addGeometry(Part.Circle(App.Vector(-32.7, 102.9, 0), App.Vector(0, 0, 1), 2), False)
sketch15.addConstraint([
    Sketcher.Constraint("Diameter", 0, 4.0),
    Sketcher.Constraint("DistanceX", 0, 3, -1, 1, 32.7),
    Sketcher.Constraint("DistanceY", -1, 1, 0, 3, 102.9),
])
sketch15.setExpression("Constraints[0]", "Params.sketch15_diameter")
doc.recompute()
hole7 = doc.addObject("PartDesign::Hole", "Hole006")
body.addObject(hole7)
hole7.Profile = sketch15
hole7.ThreadType = "None"
hole7.setExpression("Diameter", "Params.hole7_diameter")
hole7.DepthType = "ThroughAll"

# Sketch on XY plane
sketch16 = doc.addObject("Sketcher::SketchObject", "Sketch015")
body.addObject(sketch16)
sketch16.AttachmentSupport = (doc.XY_Plane, [""])
sketch16.MapMode = "FlatFace"
sketch16.AttachmentOffset = App.Placement(App.Vector(0, 0, -47.5), App.Rotation())
sketch16.addGeometry(Part.Circle(App.Vector(-58.3, 102.9, 0), App.Vector(0, 0, 1), 2), False)
sketch16.addConstraint([
    Sketcher.Constraint("Diameter", 0, 4.0),
    Sketcher.Constraint("DistanceX", 0, 3, -1, 1, 58.3),
    Sketcher.Constraint("DistanceY", -1, 1, 0, 3, 102.9),
])
sketch16.setExpression("Constraints[0]", "Params.sketch16_diameter")
doc.recompute()
hole8 = doc.addObject("PartDesign::Hole", "Hole007")
body.addObject(hole8)
hole8.Profile = sketch16
hole8.ThreadType = "None"
hole8.setExpression("Diameter", "Params.hole8_diameter")
hole8.DepthType = "ThroughAll"

# Sketch on XZ plane
sketch17 = doc.addObject("Sketcher::SketchObject", "Sketch016")
body.addObject(sketch17)
sketch17.AttachmentSupport = (doc.XZ_Plane, [""])
sketch17.MapMode = "FlatFace"
sketch17.AttachmentOffset = App.Placement(App.Vector(0, 0, 125.5), App.Rotation())
sketch17.addGeometry(Part.Circle(App.Vector(-46, -14, 0), App.Vector(0, 0, 1), 20), False)
sketch17.addConstraint([
    Sketcher.Constraint("Diameter", 0, 40.0),
    Sketcher.Constraint("DistanceY", 0, 3, -1, 1, 14.0),
    Sketcher.Constraint("DistanceX", 0, 3, -1, 1, 45.5),
])
sketch17.setExpression("Constraints[0]", "Params.sketch17_diameter")
doc.recompute()
hole9 = doc.addObject("PartDesign::Hole", "Hole008")
body.addObject(hole9)
hole9.Profile = sketch17
hole9.ThreadType = "None"
hole9.setExpression("Diameter", "Params.hole9_diameter")
hole9.DepthType = "Dimension"
hole9.setExpression("Depth", "Params.hole9_depth")
hole9.DrillPoint = "Flat"

# Sketch on XZ plane
sketch18 = doc.addObject("Sketcher::SketchObject", "Sketch017")
body.addObject(sketch18)
sketch18.AttachmentSupport = (doc.XZ_Plane, [""])
sketch18.MapMode = "FlatFace"
sketch18.AttachmentOffset = App.Placement(App.Vector(0, 0, 125.5), App.Rotation())
sketch18.addGeometry(Part.Circle(App.Vector(-104, -14, 0), App.Vector(0, 0, 1), 20), False)
sketch18.addConstraint([
    Sketcher.Constraint("Diameter", 0, 40.0),
    Sketcher.Constraint("DistanceY", 0, 3, -1, 1, 14.0),
    Sketcher.Constraint("DistanceX", 0, 3, -1, 1, 104.5),
])
sketch18.setExpression("Constraints[0]", "Params.sketch18_diameter")
doc.recompute()
hole10 = doc.addObject("PartDesign::Hole", "Hole009")
body.addObject(hole10)
hole10.Profile = sketch18
hole10.ThreadType = "None"
hole10.setExpression("Diameter", "Params.hole10_diameter")
hole10.DepthType = "Dimension"
hole10.setExpression("Depth", "Params.hole10_depth")
hole10.DrillPoint = "Flat"

# Sketch on XZ plane
sketch19 = doc.addObject("Sketcher::SketchObject", "Sketch018")
body.addObject(sketch19)
sketch19.AttachmentSupport = (doc.XZ_Plane, [""])
sketch19.MapMode = "FlatFace"
sketch19.AttachmentOffset = App.Placement(App.Vector(0, 0, -125.5), App.Rotation())
sketch19.addGeometry(Part.Circle(App.Vector(-104, -14, 0), App.Vector(0, 0, 1), 20), False)
sketch19.addConstraint([
    Sketcher.Constraint("Diameter", 0, 40.0),
    Sketcher.Constraint("DistanceY", 0, 3, -1, 1, 14.0),
    Sketcher.Constraint("DistanceX", 0, 3, -1, 1, 104.5),
])
sketch19.setExpression("Constraints[0]", "Params.sketch19_diameter")
doc.recompute()
hole11 = doc.addObject("PartDesign::Hole", "Hole010")
body.addObject(hole11)
hole11.Profile = sketch19
hole11.ThreadType = "None"
hole11.setExpression("Diameter", "Params.hole11_diameter")
hole11.DepthType = "Dimension"
hole11.setExpression("Depth", "Params.hole11_depth")
hole11.DrillPoint = "Flat"
hole11.Reversed = True

# Sketch on XZ plane
sketch20 = doc.addObject("Sketcher::SketchObject", "Sketch019")
body.addObject(sketch20)
sketch20.AttachmentSupport = (doc.XZ_Plane, [""])
sketch20.MapMode = "FlatFace"
sketch20.AttachmentOffset = App.Placement(App.Vector(0, 0, -125.5), App.Rotation())
sketch20.addGeometry(Part.Circle(App.Vector(-46, -14, 0), App.Vector(0, 0, 1), 20), False)
sketch20.addConstraint([
    Sketcher.Constraint("Diameter", 0, 40.0),
    Sketcher.Constraint("DistanceY", 0, 3, -1, 1, 14.0),
    Sketcher.Constraint("DistanceX", 0, 3, -1, 1, 45.5),
])
sketch20.setExpression("Constraints[0]", "Params.sketch20_diameter")
doc.recompute()
hole12 = doc.addObject("PartDesign::Hole", "Hole011")
body.addObject(hole12)
hole12.Profile = sketch20
hole12.ThreadType = "None"
hole12.setExpression("Diameter", "Params.hole12_diameter")
hole12.DepthType = "Dimension"
hole12.setExpression("Depth", "Params.hole12_depth")
hole12.DrillPoint = "Flat"
hole12.Reversed = True
doc.recompute()

fillet = doc.addObject("PartDesign::Fillet", "Fillet")
body.addObject(fillet)
fillet.Base = (hole12, edges_at(hole12, [(-75, 125.5, 47.5)]))
fillet.setExpression("Radius", "Params.fillet_radius")
doc.recompute()

fillet2 = doc.addObject("PartDesign::Fillet", "Fillet001")
body.addObject(fillet2)
fillet2.Base = (fillet, edges_at(fillet, [(-75, -125.5, 47.5)]))
fillet2.setExpression("Radius", "Params.fillet2_radius")
doc.recompute()

fillet3 = doc.addObject("PartDesign::Fillet", "Fillet002")
body.addObject(fillet3)
fillet3.Base = (fillet2, edges_at(fillet2, [(-75, -123.5, -47.5)]))
fillet3.setExpression("Radius", "Params.fillet3_radius")
doc.recompute()

fillet4 = doc.addObject("PartDesign::Fillet", "Fillet003")
body.addObject(fillet4)
fillet4.Base = (fillet3, edges_at(fillet3, [(-75, 123.5, -47.5)]))
fillet4.setExpression("Radius", "Params.fillet4_radius")
doc.recompute()

fillet5 = doc.addObject("PartDesign::Fillet", "Fillet004")
body.addObject(fillet5)
fillet5.Base = (fillet4, edges_at(fillet4, [(-75, 123.5, 49.5)]))
fillet5.setExpression("Radius", "Params.fillet5_radius")
doc.recompute()

fillet6 = doc.addObject("PartDesign::Fillet", "Fillet005")
body.addObject(fillet6)
fillet6.Base = (fillet5, edges_at(fillet5, [(-75, -123.5, 49.5)]))
fillet6.setExpression("Radius", "Params.fillet6_radius")
doc.recompute()

fillet7 = doc.addObject("PartDesign::Fillet", "Fillet006")
body.addObject(fillet7)
fillet7.Base = (fillet6, edges_at(fillet6, [(-75, -125.5, -49.5)]))
fillet7.setExpression("Radius", "Params.fillet7_radius")
doc.recompute()

fillet8 = doc.addObject("PartDesign::Fillet", "Fillet007")
body.addObject(fillet8)
fillet8.Base = (fillet7, edges_at(fillet7, [(-75, 125.5, -49.5)]))
fillet8.setExpression("Radius", "Params.fillet8_radius")
doc.recompute()

fillet9 = doc.addObject("PartDesign::Fillet", "Fillet008")
body.addObject(fillet9)
fillet9.Base = (fillet8, edges_at(fillet8, [(-136.5, -167.5, 48.5)]))
fillet9.setExpression("Radius", "Params.fillet9_radius")
doc.recompute()

fillet10 = doc.addObject("PartDesign::Fillet", "Fillet009")
body.addObject(fillet10)
fillet10.Base = (fillet9, edges_at(fillet9, [(-136.5, 167.5, 48.5)]))
fillet10.setExpression("Radius", "Params.fillet10_radius")
doc.recompute()

fillet11 = doc.addObject("PartDesign::Fillet", "Fillet010")
body.addObject(fillet11)
fillet11.Base = (fillet10, edges_at(fillet10, [(-13.5, -167.5, 48.5)]))
fillet11.setExpression("Radius", "Params.fillet11_radius")
doc.recompute()

fillet12 = doc.addObject("PartDesign::Fillet", "Fillet011")
body.addObject(fillet12)
fillet12.Base = (fillet11, edges_at(fillet11, [(-13.5, 167.5, 48.5)]))
fillet12.setExpression("Radius", "Params.fillet12_radius")

doc.recompute()
